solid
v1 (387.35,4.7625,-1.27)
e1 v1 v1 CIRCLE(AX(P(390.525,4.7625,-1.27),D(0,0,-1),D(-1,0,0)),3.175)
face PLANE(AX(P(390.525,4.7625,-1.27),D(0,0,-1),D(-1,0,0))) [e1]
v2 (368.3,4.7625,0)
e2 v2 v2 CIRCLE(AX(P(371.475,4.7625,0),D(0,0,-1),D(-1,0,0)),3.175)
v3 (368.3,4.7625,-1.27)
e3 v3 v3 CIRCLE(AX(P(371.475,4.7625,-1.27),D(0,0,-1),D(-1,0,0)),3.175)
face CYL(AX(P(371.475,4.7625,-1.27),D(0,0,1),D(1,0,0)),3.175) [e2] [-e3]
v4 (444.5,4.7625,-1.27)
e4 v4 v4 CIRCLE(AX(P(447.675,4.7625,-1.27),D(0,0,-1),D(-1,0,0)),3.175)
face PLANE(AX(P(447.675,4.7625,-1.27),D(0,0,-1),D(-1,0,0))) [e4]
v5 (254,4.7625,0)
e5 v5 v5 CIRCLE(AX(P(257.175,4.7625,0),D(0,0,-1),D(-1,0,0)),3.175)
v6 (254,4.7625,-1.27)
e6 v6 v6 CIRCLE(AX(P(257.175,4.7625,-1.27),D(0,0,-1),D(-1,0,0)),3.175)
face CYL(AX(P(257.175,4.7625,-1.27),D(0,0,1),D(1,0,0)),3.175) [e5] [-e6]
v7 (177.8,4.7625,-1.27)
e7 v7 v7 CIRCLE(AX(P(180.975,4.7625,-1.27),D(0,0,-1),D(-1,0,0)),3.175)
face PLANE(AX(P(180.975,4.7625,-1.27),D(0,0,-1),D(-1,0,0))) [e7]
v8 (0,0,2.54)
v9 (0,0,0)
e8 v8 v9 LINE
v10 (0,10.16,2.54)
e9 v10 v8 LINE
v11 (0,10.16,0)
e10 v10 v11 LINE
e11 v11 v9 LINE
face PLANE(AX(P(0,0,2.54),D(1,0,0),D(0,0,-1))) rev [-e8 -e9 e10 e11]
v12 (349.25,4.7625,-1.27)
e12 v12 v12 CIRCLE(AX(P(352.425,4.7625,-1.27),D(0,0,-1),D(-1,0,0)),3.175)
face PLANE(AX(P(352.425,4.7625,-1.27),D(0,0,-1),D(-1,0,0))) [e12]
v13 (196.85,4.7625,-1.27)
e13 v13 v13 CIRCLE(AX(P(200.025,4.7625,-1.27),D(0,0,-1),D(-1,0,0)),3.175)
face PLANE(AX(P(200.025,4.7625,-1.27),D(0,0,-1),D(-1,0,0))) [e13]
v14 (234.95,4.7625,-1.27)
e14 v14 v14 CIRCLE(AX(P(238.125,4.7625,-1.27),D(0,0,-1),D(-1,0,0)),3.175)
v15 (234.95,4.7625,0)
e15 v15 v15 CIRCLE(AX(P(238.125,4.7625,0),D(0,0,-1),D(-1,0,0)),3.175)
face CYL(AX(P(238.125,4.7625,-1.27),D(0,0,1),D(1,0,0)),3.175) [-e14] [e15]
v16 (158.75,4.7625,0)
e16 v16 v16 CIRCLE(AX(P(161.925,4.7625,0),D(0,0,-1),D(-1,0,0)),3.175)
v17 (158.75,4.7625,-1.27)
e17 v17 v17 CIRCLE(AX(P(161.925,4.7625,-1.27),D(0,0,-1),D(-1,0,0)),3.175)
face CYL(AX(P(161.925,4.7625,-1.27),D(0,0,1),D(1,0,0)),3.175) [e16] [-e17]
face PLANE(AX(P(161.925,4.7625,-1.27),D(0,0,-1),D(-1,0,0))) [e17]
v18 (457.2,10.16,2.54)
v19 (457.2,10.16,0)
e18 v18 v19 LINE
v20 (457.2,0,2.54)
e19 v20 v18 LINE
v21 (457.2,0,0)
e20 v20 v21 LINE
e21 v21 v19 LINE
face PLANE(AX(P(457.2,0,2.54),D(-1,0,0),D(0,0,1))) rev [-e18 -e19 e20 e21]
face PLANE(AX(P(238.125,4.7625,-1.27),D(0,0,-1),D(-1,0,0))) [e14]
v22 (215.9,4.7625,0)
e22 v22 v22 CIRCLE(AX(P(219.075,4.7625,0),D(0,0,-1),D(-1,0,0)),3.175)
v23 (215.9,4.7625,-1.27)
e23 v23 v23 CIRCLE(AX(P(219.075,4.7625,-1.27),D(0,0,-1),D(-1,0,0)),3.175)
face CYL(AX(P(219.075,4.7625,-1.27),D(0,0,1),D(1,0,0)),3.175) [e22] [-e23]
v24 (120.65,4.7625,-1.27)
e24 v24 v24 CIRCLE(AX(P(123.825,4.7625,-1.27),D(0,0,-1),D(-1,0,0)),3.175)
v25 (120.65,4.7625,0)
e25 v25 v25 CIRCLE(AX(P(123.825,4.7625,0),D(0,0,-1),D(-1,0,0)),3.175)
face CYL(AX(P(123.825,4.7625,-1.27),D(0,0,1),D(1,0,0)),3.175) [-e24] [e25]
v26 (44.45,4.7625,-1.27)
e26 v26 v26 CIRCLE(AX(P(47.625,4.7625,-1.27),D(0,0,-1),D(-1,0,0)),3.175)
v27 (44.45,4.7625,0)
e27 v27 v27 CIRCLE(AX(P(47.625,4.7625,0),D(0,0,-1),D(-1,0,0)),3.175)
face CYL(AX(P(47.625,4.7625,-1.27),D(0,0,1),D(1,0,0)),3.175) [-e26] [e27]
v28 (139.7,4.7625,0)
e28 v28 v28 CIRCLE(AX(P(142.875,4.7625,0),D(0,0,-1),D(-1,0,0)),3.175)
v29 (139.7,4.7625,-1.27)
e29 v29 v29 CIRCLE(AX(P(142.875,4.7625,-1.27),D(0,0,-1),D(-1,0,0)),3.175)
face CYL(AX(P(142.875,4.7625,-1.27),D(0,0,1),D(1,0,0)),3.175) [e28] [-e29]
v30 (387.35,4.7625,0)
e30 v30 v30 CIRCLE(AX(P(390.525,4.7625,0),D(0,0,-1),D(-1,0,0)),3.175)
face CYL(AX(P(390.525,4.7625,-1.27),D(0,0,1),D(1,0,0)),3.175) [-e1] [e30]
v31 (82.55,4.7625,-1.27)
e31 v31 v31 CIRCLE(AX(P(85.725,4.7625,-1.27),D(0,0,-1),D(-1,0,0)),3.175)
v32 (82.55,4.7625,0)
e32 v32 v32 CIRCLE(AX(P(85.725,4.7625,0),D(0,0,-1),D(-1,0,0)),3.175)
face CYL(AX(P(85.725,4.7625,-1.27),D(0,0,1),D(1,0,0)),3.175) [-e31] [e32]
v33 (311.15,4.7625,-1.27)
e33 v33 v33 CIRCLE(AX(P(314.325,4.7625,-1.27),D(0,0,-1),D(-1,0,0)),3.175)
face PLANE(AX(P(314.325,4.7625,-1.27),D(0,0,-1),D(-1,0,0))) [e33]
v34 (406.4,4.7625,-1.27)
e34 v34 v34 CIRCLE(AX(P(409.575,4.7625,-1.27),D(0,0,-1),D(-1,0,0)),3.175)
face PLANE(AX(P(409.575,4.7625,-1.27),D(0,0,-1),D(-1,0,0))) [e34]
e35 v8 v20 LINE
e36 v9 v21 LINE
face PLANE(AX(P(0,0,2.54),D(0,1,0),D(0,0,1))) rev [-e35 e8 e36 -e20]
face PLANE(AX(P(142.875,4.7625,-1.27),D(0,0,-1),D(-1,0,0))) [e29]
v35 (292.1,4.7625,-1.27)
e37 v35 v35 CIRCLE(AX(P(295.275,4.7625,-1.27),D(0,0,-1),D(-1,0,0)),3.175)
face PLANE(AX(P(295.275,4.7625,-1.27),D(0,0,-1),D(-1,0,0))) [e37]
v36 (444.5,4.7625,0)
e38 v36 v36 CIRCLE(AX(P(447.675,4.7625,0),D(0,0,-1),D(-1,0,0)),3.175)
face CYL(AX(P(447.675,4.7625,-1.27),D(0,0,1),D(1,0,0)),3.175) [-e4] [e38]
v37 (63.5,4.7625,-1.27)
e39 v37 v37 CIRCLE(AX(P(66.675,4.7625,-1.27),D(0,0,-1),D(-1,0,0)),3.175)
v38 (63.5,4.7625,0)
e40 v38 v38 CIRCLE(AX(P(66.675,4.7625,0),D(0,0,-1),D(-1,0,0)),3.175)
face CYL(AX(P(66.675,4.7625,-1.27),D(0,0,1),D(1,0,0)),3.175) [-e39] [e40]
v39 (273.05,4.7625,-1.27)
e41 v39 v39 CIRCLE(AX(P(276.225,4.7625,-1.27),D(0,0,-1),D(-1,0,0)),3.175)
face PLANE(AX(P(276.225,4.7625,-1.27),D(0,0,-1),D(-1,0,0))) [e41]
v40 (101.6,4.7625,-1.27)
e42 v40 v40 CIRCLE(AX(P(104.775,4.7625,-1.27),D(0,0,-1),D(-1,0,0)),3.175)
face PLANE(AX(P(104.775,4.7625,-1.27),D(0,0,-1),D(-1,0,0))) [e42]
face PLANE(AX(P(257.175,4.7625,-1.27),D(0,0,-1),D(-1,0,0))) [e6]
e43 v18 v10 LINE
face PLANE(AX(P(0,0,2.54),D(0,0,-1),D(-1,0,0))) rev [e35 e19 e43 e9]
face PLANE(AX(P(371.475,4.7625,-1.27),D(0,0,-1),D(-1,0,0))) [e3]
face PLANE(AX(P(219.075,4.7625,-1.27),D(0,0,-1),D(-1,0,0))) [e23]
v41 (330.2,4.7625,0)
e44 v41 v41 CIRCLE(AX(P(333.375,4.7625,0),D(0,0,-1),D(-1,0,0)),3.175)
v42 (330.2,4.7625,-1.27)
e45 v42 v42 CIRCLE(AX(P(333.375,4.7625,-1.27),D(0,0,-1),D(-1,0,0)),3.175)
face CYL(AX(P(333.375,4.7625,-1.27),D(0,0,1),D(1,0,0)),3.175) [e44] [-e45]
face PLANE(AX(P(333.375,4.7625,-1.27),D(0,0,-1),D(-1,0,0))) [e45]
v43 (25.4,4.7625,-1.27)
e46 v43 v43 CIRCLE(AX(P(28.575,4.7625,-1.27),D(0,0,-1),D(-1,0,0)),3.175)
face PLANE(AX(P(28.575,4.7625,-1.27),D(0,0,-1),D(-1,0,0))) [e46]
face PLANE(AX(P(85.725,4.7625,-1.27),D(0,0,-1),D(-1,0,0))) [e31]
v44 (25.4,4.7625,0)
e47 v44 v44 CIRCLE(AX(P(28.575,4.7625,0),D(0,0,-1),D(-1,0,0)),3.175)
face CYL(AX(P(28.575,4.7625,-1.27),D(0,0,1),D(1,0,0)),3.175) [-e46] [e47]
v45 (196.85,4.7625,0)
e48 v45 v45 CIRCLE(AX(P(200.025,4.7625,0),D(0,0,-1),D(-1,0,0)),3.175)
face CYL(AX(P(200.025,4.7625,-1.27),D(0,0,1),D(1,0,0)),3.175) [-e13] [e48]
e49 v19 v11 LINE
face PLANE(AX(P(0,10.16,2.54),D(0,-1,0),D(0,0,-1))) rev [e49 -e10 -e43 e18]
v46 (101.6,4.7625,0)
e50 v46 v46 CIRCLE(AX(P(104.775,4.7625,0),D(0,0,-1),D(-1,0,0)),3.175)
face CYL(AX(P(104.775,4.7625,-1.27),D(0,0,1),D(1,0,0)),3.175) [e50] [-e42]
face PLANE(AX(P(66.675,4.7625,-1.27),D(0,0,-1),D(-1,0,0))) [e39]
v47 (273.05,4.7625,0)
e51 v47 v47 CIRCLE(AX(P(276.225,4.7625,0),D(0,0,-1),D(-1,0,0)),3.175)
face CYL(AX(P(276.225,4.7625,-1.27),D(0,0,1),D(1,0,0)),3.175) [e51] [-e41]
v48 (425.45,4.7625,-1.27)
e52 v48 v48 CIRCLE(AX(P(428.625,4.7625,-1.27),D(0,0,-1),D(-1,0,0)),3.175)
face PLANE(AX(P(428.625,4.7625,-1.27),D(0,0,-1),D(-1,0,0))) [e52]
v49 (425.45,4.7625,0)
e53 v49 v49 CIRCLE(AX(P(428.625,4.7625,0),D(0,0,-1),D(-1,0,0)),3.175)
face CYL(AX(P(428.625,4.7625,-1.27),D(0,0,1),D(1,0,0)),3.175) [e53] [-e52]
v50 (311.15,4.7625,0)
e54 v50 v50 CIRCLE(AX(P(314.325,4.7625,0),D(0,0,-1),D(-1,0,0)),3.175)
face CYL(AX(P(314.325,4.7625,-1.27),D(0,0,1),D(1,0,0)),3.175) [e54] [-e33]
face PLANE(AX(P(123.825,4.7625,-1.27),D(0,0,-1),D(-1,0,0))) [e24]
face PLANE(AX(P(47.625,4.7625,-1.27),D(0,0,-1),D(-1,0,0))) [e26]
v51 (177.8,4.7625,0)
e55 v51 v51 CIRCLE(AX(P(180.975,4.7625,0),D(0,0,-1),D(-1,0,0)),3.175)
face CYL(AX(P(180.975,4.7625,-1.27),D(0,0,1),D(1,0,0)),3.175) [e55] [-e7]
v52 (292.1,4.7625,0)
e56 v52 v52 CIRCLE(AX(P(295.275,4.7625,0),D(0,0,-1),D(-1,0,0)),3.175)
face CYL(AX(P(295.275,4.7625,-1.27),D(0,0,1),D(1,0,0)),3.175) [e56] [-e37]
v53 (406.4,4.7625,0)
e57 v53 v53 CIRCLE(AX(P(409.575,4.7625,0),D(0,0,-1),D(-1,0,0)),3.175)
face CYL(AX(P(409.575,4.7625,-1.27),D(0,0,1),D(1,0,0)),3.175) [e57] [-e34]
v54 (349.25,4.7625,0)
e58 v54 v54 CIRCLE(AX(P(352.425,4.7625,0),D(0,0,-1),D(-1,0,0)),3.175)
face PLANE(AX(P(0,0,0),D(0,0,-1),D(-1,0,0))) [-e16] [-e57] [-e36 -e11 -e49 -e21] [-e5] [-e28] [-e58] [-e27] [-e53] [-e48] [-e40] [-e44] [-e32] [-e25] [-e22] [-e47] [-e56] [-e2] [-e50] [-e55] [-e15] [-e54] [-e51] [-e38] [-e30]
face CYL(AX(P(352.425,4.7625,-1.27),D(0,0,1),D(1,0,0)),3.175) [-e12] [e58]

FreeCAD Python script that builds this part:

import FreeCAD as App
import Part
import Sketcher

V = App.Vector
Q = App.Units.Quantity

doc = App.newDocument("Part")
params = doc.addObject("Spreadsheet::Sheet", "Params")
for row, (alias, value) in enumerate([
    ("sketch1_width", "18 in"),
    ("sketch1_height", "0.4 in"),
    ("pad1_length", "0.1 in"),
    ("sketch2_diameter", "0.25 in"),
    ("pad2_length", "0.05 in"),
    ("linearpattern_pitch", "0.75 in"),
], start=1):
    params.set(f"A{row}", alias)
    params.set(f"B{row}", "=" + value)
    params.setAlias(f"B{row}", alias)

body = doc.addObject("PartDesign::Body", "Body")

sketch1 = body.newObject("Sketcher::SketchObject", "Sketch")
sketch1.AttachmentSupport = (doc.getObject("XY_Plane"), [""])
sketch1.MapMode = "FlatFace"
sketch1.addGeometry([
    Part.LineSegment(V(0, 10, 0), V(0, 0, 0)),
    Part.LineSegment(V(0, 0, 0), V(457, 0, 0)),
    Part.LineSegment(V(457, 0, 0), V(457, 10, 0)),
    Part.LineSegment(V(457, 10, 0), V(0, 10, 0)),
], False)
sketch1.addConstraint([
    Sketcher.Constraint("Coincident", 0, 2, 1, 1),
    Sketcher.Constraint("Coincident", 1, 2, 2, 1),
    Sketcher.Constraint("Coincident", 2, 2, 3, 1),
    Sketcher.Constraint("Coincident", 3, 2, 0, 1),
    Sketcher.Constraint("Vertical", 0),
    Sketcher.Constraint("Horizontal", 1),
    Sketcher.Constraint("Vertical", 2),
    Sketcher.Constraint("Horizontal", 3),
    Sketcher.Constraint("Coincident", 0, 2, -1, 1),
    Sketcher.Constraint("DistanceX", 1, 1, 1, 2, Q("18 in")),
    Sketcher.Constraint("DistanceY", 0, 2, 0, 1, Q("0.4 in")),
])
sketch1.setExpression("Constraints[9]", "Params.sketch1_width")
sketch1.setExpression("Constraints[10]", "Params.sketch1_height")
pad1 = body.newObject("PartDesign::Pad", "Pad")
pad1.Profile = sketch1
pad1.setExpression("Length", "Params.pad1_length")

sketch2 = body.newObject("Sketcher::SketchObject", "Sketch001")
sketch2.AttachmentSupport = (doc.getObject("XY_Plane"), [""])
sketch2.MapMode = "FlatFace"
sketch2.addGeometry(Part.Circle(V(447.7, 4.8, 0), V(0, 0, 1), 3.2), False)
sketch2.addConstraint([
    Sketcher.Constraint("Diameter", 0, Q("0.25 in")),
    Sketcher.Constraint("DistanceX", -1, 1, 0, 3, Q("17.625 in")),
    Sketcher.Constraint("DistanceY", -1, 1, 0, 3, Q("0.1875 in")),
])
sketch2.setExpression("Constraints[0]", "Params.sketch2_diameter")
pad2 = body.newObject("PartDesign::Pad", "Pad001")
pad2.Profile = sketch2
pad2.setExpression("Length", "Params.pad2_length")
pad2.Reversed = True
doc.recompute()

linearpattern = body.newObject("PartDesign::LinearPattern", "LinearPattern")
linearpattern.Originals = [pad2]
linearpattern.Direction = (doc.getObject("X_Axis"), [""])
linearpattern.Mode = "offset"
linearpattern.setExpression("Offset", "Params.linearpattern_pitch")
linearpattern.Occurrences = 23
linearpattern.Reversed = True
body.Tip = linearpattern

doc.recompute()
